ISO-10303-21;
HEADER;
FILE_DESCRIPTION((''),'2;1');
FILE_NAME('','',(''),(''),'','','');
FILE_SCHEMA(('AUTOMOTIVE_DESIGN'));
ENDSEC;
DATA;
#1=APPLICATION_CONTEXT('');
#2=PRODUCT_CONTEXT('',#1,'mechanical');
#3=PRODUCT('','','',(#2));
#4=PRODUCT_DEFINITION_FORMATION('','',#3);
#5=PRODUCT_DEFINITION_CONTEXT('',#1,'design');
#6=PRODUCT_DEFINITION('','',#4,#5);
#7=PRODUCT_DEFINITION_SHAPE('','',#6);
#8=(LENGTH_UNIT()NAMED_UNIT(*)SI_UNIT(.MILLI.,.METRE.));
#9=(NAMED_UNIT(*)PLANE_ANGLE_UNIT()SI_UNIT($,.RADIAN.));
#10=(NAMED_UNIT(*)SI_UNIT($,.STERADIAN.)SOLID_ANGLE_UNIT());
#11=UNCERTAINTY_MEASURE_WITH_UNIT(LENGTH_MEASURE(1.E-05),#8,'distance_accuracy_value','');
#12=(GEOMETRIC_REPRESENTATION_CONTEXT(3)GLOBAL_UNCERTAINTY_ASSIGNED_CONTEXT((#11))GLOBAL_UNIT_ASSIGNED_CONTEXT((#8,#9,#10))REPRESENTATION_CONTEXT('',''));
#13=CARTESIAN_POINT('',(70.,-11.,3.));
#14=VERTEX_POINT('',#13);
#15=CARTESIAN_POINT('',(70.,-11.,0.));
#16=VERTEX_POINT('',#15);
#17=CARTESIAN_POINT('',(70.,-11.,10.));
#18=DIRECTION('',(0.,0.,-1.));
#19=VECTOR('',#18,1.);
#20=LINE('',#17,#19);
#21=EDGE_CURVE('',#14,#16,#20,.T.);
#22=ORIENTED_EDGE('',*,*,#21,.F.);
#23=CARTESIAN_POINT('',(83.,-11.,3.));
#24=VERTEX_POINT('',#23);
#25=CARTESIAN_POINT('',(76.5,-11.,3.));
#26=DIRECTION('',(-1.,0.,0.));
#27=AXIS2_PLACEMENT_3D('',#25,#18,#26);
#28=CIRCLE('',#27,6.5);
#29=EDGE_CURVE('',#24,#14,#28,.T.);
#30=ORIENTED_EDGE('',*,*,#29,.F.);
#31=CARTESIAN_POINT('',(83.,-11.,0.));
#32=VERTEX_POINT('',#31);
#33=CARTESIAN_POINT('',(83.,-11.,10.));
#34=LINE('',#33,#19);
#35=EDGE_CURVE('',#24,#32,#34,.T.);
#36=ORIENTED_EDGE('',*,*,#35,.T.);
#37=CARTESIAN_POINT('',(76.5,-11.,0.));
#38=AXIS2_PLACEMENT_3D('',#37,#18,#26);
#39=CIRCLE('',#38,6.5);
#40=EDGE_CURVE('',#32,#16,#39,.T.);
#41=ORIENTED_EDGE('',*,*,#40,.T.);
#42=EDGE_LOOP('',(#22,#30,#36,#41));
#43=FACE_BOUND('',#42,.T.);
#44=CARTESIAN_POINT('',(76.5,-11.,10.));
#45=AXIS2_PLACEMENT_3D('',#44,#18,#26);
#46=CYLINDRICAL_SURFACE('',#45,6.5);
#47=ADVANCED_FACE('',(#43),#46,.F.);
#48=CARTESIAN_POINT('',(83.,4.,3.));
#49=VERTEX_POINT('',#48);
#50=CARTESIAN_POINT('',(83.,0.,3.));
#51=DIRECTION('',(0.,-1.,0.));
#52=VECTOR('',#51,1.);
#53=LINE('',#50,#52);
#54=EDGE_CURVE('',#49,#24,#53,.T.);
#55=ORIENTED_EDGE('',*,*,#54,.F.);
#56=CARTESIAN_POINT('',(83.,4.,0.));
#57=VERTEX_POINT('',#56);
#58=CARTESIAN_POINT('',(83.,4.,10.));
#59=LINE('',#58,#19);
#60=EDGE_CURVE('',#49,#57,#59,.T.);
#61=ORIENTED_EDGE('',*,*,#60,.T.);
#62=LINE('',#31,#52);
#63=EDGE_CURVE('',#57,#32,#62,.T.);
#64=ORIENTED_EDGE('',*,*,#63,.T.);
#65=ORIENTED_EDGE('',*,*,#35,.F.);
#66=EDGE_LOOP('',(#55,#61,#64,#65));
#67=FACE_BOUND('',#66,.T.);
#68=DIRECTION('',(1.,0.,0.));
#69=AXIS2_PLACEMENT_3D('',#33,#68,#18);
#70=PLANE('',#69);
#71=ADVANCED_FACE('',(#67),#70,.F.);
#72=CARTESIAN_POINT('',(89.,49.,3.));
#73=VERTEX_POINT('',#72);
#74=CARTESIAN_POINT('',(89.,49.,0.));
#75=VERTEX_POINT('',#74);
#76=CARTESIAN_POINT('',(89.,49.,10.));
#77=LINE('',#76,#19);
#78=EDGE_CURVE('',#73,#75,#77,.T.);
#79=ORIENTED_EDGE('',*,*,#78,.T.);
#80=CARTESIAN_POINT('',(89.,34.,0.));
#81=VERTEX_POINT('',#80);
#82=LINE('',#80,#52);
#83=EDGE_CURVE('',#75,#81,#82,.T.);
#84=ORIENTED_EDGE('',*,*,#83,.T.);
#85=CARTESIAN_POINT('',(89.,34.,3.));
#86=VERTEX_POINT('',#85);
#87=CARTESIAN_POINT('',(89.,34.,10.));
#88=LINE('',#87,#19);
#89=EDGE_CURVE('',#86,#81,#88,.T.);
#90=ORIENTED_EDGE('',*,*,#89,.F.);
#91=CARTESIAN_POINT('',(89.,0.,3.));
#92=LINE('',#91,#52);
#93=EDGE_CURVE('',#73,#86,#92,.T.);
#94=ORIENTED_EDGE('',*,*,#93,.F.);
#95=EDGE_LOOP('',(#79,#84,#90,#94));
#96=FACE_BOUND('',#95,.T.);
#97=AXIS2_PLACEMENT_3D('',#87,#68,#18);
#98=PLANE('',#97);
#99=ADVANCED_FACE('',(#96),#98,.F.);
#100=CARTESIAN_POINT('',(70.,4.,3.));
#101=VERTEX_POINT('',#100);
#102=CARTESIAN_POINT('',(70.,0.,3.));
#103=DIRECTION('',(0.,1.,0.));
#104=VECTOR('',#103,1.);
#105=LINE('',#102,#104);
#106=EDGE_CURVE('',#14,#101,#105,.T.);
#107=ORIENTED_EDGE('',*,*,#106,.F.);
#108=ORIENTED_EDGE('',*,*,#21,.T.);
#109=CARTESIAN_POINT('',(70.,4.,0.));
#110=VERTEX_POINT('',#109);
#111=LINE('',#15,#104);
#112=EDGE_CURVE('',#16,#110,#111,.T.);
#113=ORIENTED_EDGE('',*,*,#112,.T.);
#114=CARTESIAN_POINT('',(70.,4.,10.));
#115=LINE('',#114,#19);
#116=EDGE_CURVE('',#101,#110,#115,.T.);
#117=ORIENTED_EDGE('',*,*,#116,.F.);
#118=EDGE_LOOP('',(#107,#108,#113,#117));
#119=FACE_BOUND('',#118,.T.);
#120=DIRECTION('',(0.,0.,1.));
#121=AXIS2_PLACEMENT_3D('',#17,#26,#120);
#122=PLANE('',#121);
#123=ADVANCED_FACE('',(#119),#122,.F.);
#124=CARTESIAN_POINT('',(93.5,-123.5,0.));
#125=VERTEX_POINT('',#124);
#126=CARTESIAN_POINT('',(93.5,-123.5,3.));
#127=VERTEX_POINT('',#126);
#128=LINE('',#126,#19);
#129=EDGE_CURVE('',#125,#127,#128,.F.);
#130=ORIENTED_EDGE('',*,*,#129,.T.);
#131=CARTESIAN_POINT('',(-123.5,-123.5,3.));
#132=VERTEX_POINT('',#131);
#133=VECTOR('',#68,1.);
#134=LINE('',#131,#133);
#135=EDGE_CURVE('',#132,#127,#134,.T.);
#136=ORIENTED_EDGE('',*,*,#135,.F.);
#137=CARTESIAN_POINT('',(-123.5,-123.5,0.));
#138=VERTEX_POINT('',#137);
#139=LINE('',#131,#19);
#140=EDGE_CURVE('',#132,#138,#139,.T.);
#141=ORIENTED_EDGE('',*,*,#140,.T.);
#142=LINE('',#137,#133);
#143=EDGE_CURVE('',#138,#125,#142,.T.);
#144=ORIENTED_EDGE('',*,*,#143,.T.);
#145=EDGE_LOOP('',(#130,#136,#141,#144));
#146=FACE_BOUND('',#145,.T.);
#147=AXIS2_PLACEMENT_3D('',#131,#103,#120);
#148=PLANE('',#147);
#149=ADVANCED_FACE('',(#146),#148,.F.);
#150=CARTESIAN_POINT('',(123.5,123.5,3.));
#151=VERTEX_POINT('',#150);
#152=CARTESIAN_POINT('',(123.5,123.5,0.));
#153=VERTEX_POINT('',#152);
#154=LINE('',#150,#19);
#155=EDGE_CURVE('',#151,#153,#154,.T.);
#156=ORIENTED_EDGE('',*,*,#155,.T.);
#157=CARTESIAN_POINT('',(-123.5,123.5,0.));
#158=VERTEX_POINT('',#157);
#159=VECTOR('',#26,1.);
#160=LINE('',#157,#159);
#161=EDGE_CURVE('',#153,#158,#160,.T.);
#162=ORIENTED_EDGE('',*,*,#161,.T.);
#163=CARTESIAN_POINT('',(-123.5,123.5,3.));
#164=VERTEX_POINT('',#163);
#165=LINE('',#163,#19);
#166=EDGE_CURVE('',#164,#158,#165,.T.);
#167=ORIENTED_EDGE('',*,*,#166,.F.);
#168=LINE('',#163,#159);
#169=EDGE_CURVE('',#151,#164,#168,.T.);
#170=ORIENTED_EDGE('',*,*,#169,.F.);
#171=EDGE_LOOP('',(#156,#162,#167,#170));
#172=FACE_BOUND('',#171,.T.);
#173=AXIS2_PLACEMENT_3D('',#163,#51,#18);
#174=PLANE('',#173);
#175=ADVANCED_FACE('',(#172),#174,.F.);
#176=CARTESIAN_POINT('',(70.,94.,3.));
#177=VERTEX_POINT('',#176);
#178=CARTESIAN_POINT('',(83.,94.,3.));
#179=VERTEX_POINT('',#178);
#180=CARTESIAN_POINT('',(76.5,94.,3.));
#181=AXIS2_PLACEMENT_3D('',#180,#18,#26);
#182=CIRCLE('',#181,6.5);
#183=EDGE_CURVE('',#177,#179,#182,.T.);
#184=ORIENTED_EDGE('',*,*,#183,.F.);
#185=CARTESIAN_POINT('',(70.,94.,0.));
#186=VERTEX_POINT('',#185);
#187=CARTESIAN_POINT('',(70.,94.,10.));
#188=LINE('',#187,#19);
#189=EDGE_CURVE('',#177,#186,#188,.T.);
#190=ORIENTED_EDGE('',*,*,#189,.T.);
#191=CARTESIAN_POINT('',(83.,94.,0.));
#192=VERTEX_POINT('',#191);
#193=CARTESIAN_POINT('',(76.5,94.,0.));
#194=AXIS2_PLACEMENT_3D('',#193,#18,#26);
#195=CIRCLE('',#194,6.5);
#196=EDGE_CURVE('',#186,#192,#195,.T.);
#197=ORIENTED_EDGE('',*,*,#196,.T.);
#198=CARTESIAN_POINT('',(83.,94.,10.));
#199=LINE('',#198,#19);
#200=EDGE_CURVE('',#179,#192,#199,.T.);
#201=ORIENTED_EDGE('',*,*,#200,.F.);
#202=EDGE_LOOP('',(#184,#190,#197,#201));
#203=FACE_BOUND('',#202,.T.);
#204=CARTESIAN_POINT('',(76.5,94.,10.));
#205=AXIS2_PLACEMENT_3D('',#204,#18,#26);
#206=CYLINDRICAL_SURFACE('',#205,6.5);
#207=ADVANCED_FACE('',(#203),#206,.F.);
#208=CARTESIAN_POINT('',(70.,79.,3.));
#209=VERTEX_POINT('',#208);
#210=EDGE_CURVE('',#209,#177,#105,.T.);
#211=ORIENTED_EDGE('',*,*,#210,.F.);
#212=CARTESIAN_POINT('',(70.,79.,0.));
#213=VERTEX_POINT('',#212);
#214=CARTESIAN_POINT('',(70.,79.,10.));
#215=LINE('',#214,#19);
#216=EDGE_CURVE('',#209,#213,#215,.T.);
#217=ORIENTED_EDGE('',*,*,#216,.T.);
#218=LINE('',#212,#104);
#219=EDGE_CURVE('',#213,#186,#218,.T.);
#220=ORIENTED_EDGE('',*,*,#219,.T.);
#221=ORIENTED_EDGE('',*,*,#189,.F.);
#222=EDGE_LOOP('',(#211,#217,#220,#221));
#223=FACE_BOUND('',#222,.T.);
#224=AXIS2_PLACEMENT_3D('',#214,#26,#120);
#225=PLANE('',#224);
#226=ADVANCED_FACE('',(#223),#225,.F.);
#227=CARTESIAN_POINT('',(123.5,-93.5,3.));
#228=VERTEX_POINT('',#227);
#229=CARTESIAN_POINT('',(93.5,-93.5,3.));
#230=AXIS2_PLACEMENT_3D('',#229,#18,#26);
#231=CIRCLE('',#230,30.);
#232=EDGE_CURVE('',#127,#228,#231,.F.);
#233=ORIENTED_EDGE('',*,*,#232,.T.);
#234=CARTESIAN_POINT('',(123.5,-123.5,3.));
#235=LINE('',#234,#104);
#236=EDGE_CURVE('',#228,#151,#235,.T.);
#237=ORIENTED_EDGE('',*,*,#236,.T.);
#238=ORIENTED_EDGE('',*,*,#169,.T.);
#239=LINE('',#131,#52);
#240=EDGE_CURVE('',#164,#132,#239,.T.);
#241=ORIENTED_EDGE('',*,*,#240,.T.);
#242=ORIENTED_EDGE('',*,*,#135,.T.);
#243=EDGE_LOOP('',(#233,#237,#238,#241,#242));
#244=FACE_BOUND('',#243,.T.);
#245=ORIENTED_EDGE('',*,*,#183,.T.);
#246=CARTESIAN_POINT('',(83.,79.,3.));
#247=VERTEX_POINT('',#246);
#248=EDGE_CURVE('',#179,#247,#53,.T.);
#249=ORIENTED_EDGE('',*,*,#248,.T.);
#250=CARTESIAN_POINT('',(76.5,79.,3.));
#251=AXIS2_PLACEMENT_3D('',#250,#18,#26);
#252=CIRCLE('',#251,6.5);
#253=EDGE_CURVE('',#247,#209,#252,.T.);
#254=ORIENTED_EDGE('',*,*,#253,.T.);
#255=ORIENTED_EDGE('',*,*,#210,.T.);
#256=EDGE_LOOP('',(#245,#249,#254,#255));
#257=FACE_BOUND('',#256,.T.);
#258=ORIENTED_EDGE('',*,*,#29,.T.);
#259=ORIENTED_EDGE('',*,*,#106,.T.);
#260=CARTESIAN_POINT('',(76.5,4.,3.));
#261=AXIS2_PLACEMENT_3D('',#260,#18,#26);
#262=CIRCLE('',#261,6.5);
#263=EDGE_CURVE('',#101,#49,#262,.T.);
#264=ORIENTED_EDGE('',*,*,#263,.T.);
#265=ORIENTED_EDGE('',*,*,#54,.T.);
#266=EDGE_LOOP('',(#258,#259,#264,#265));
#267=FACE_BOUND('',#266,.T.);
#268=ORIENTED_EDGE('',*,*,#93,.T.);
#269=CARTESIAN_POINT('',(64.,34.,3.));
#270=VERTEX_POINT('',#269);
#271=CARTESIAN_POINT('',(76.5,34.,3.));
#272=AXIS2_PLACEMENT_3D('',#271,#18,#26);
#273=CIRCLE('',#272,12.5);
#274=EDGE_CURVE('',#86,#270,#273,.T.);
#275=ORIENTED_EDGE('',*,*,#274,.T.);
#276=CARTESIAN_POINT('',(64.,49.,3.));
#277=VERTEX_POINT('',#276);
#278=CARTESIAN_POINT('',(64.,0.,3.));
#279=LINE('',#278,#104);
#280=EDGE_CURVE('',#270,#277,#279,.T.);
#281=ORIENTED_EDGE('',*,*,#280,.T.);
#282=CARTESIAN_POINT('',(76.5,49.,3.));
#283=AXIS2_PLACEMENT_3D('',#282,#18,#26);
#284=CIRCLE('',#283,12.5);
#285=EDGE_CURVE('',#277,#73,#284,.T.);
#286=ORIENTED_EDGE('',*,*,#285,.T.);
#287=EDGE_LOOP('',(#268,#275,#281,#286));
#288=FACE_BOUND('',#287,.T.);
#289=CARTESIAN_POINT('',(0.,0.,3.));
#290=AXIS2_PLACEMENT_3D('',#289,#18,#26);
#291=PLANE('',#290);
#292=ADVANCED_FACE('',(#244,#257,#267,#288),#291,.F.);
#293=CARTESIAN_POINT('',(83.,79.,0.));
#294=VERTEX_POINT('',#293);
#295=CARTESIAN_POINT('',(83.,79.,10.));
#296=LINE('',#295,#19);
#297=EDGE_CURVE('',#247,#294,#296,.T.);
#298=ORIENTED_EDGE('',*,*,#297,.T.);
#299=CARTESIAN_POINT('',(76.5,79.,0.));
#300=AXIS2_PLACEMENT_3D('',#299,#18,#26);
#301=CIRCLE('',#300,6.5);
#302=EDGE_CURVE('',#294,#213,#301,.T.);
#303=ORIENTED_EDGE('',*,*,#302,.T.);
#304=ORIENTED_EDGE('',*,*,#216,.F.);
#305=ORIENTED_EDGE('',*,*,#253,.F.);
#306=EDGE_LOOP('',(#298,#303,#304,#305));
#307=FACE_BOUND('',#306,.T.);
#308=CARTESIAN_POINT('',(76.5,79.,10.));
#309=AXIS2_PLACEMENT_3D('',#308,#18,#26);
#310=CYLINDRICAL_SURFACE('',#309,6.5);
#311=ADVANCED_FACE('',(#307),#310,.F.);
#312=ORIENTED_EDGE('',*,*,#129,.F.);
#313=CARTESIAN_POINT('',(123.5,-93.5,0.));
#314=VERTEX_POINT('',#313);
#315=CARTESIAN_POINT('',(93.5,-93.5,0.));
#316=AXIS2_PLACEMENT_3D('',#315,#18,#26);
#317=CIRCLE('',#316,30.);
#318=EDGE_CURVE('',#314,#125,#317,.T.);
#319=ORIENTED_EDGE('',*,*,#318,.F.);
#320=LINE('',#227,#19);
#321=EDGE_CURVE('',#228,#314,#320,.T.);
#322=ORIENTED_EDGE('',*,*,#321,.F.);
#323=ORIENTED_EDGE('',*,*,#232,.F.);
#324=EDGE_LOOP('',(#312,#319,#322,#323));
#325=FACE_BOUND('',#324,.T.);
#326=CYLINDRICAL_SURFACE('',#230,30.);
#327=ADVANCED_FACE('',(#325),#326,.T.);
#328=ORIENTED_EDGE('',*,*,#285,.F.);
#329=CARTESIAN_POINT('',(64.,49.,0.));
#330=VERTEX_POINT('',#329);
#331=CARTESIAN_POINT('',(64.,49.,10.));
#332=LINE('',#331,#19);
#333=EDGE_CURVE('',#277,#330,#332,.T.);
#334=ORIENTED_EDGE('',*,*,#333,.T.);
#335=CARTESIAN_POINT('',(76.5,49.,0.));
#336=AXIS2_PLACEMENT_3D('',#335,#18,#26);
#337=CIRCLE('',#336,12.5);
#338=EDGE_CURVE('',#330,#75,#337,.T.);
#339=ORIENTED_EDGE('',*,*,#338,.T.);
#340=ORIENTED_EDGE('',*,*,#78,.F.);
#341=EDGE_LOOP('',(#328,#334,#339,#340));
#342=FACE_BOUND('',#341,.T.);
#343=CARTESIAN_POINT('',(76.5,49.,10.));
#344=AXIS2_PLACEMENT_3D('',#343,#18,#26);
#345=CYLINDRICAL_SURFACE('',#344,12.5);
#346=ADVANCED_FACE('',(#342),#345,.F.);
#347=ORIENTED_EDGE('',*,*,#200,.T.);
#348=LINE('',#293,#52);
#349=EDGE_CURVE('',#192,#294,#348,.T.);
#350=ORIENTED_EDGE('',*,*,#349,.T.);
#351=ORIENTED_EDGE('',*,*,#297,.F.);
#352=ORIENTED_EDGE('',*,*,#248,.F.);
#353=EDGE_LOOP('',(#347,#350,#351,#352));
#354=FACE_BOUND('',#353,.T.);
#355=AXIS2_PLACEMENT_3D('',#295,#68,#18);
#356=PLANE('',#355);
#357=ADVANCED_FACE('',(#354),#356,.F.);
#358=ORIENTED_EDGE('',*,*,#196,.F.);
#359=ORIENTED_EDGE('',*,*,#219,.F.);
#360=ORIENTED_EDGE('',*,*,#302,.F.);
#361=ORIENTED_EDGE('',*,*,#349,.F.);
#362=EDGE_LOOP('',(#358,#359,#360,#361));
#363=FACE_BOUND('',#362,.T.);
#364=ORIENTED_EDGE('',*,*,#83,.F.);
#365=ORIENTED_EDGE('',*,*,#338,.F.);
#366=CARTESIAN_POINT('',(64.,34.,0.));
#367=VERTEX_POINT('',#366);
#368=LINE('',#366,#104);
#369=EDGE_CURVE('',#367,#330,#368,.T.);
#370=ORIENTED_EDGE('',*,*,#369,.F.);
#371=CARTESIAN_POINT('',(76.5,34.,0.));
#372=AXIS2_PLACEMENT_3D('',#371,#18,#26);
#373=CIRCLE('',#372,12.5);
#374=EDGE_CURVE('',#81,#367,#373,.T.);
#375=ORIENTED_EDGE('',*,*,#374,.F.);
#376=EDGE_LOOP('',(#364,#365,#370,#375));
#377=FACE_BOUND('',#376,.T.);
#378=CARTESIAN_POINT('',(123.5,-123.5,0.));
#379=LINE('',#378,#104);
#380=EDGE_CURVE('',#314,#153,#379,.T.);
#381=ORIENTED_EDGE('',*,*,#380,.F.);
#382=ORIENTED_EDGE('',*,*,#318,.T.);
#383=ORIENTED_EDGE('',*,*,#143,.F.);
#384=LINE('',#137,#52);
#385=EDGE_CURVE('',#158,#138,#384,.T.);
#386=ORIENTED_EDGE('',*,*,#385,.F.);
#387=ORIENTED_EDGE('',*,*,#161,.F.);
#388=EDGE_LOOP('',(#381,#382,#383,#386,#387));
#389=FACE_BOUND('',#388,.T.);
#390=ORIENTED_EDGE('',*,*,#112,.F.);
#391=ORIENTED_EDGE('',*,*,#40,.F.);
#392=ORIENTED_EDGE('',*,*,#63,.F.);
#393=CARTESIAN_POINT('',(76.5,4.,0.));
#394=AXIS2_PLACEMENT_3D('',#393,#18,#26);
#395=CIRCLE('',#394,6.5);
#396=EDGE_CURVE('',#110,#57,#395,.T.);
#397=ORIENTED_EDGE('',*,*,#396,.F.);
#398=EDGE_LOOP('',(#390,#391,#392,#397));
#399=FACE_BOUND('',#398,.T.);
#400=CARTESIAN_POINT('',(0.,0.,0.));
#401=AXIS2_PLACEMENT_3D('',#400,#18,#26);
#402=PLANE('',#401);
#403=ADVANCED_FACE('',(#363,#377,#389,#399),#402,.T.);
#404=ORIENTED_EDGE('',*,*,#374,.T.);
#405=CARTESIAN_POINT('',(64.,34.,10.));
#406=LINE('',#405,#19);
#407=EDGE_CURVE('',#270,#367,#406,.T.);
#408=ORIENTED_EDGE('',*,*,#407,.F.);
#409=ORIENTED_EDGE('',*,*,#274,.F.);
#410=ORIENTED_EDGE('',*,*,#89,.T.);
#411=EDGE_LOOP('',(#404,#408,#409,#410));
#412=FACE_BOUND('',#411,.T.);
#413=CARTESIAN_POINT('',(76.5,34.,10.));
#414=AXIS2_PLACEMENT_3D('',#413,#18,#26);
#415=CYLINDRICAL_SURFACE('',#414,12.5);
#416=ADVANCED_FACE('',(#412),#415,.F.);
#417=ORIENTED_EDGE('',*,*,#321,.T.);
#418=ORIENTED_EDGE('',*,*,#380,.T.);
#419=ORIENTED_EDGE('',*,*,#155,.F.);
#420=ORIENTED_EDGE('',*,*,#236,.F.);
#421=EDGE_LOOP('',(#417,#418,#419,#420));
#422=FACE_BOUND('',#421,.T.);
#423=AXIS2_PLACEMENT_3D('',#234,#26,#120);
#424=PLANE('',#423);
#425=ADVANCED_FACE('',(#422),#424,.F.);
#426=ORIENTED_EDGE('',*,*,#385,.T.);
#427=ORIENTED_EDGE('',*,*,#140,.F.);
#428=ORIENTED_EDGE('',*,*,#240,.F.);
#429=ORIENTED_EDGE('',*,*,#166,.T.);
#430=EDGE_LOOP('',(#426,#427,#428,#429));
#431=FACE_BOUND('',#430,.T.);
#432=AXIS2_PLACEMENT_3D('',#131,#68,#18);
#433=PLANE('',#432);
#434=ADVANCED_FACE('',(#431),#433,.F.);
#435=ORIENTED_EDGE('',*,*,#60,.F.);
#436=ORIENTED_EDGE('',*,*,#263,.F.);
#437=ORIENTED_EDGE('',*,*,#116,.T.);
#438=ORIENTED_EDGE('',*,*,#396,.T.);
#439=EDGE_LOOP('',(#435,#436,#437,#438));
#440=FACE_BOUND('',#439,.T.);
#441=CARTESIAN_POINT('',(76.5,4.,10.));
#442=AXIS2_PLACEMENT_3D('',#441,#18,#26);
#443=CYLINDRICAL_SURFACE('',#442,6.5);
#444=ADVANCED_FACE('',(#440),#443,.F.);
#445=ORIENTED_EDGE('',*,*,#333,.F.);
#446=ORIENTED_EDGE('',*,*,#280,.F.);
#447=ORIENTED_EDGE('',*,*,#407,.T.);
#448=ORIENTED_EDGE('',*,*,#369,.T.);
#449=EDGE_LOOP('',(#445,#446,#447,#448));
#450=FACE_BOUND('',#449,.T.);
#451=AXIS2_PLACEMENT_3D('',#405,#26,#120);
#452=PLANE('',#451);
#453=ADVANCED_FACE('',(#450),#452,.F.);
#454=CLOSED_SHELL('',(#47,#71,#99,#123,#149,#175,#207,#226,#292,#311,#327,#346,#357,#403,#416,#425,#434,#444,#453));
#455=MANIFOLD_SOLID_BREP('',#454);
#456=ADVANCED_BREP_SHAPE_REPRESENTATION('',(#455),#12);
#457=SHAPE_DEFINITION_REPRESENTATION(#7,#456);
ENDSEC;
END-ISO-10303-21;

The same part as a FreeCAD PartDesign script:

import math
import FreeCAD as App
import Part
import Sketcher


def edges_at(feature, points):
    """Names of the edges that pass closest to the given points."""
    edges = feature.Shape.Edges
    near = lambda p: min(range(len(edges)), key=lambda i: edges[i].distToShape(Part.Vertex(*p))[0])
    return sorted({f"Edge{near(p) + 1}" for p in points})


def add_polygon(sketch, points):
    """Adds a closed chain of lines whose ends are joined by coincident constraints."""
    first, n = sketch.GeometryCount, len(points)
    for a, b in zip(points, points[1:] + points[:1]):
        sketch.addGeometry(Part.LineSegment(App.Vector(*a, 0), App.Vector(*b, 0)), False)
    for i in range(n):
        sketch.addConstraint(Sketcher.Constraint("Coincident", first + i, 2, first + (i + 1) % n, 1))

doc = App.newDocument("Part")
body = doc.addObject("PartDesign::Body", "Body")

# Sketch on XY plane
sketch1 = body.newObject("Sketcher::SketchObject", "Sketch")
sketch1.AttachmentSupport = (doc.getObject("XY_Plane"), [""])
sketch1.MapMode = "FlatFace"
add_polygon(sketch1, [(-124, 124), (-124, -124), (124, -124), (124, 124)])  # lines 0-3
sketch1.addGeometry(Part.Circle(App.Vector(76, -4, 0), App.Vector(0, 0, 1), 6), False)  # 4
sketch1.addGeometry(Part.Circle(App.Vector(76, 42, 0), App.Vector(0, 0, 1), 12), False)  # 5
sketch1.addGeometry(Part.Circle(App.Vector(76, 86, 0), App.Vector(0, 0, 1), 6), False)  # 6
sketch1.addConstraint([
    Sketcher.Constraint("Vertical", 0),
    Sketcher.Constraint("Horizontal", 1),
    Sketcher.Constraint("Vertical", 2),
    Sketcher.Constraint("Horizontal", 3),
    Sketcher.Constraint("Equal", 4, 6),
    Sketcher.Constraint("Symmetric", 0, 2, 2, 2, -1, 1),
    Sketcher.Constraint("Vertical", 4, 3, 5, 3),
    Sketcher.Constraint("Vertical", 5, 3, 6, 3),
    Sketcher.Constraint("Equal", 3, 0),
    Sketcher.Constraint("Diameter", 4, 13.0),
    Sketcher.Constraint("Diameter", 5, 25.0),
    Sketcher.Constraint("DistanceX", 1, 1, 1, 2, 247.0),
    Sketcher.Constraint("DistanceY", 4, 3, 5, 3, 45.0),
    Sketcher.Constraint("DistanceY", 5, 3, 6, 3, 45.0),
    Sketcher.Constraint("DistanceX", 0, 2, 4, 3, 200.0),
    Sketcher.Constraint("DistanceY", 0, 2, 4, 3, 120.0),
])
pad1 = body.newObject("PartDesign::Pad", "Pad")
pad1.Profile = sketch1
pad1.Length = 3
doc.recompute()

fillet = body.newObject("PartDesign::Fillet", "Fillet")
fillet.Base = (pad1, edges_at(pad1, [(123.5, -123.5, 1.5)]))
fillet.Radius = 30

# Sketch on XY plane
sketch2 = body.newObject("Sketcher::SketchObject", "Sketch001")
sketch2.AttachmentSupport = (doc.getObject("XY_Plane"), [""])
sketch2.MapMode = "FlatFace"
sketch2.addGeometry([
    Part.LineSegment(App.Vector(83, 94, 0), App.Vector(83, 79, 0)),  # 0
    Part.ArcOfCircle(Part.Circle(App.Vector(76, 79, 0), App.Vector(0, 0, 1), 6), math.radians(180), math.radians(360)),  # 1
    Part.LineSegment(App.Vector(70, 79, 0), App.Vector(70, 94, 0)),  # 2
    Part.ArcOfCircle(Part.Circle(App.Vector(76, 94, 0), App.Vector(0, 0, 1), 6), math.radians(0), math.radians(180)),  # 3
    Part.LineSegment(App.Vector(83, 4, 0), App.Vector(83, -11, 0)),  # 4
    Part.ArcOfCircle(Part.Circle(App.Vector(76, -11, 0), App.Vector(0, 0, 1), 6), math.radians(180), math.radians(360)),  # 5
    Part.LineSegment(App.Vector(70, -11, 0), App.Vector(70, 4, 0)),  # 6
    Part.ArcOfCircle(Part.Circle(App.Vector(76, 4, 0), App.Vector(0, 0, 1), 6), math.radians(0), math.radians(180)),  # 7
    Part.LineSegment(App.Vector(89, 49, 0), App.Vector(89, 34, 0)),  # 8
    Part.ArcOfCircle(Part.Circle(App.Vector(76, 34, 0), App.Vector(0, 0, 1), 12), math.radians(180), math.radians(360)),  # 9
    Part.LineSegment(App.Vector(64, 34, 0), App.Vector(64, 49, 0)),  # 10
    Part.ArcOfCircle(Part.Circle(App.Vector(76, 49, 0), App.Vector(0, 0, 1), 12), math.radians(0), math.radians(180)),  # 11
], False)
sketch2.addConstraint([
    Sketcher.Constraint("Tangent", 0, 2, 1, 2),
    Sketcher.Constraint("Tangent", 1, 1, 2, 1),
    Sketcher.Constraint("Tangent", 2, 2, 3, 2),
    Sketcher.Constraint("Tangent", 3, 1, 0, 1),
    Sketcher.Constraint("Tangent", 4, 2, 5, 2),
    Sketcher.Constraint("Tangent", 5, 1, 6, 1),
    Sketcher.Constraint("Tangent", 6, 2, 7, 2),
    Sketcher.Constraint("Tangent", 7, 1, 4, 1),
    Sketcher.Constraint("Tangent", 8, 2, 9, 2),
    Sketcher.Constraint("Tangent", 9, 1, 10, 1),
    Sketcher.Constraint("Tangent", 10, 2, 11, 2),
    Sketcher.Constraint("Tangent", 11, 1, 8, 1),
    Sketcher.Constraint("Vertical", 0),
    Sketcher.Constraint("Vertical", 2),
    Sketcher.Constraint("Vertical", 4),
    Sketcher.Constraint("Vertical", 6),
    Sketcher.Constraint("Vertical", 8),
    Sketcher.Constraint("Vertical", 10),
    Sketcher.Constraint("Equal", 3, 5),
    Sketcher.Constraint("Vertical", 3, 3, 5, 3),
    Sketcher.Constraint("Vertical", 7, 3, 9, 3),
    Sketcher.Constraint("Equal", 2, 4),
    Sketcher.Constraint("Equal", 6, 8),
    Sketcher.Constraint("Radius", 1, 6.5),
    Sketcher.Constraint("Radius", 9, 12.5),
    Sketcher.Constraint("DistanceY", 0, 2, 0, 1, 15.0),
    Sketcher.Constraint("DistanceY", -1, 1, 1, 3, 79.0),
    Sketcher.Constraint("DistanceY", 5, 3, -1, 1, 11.0),
    Sketcher.Constraint("DistanceY", -1, 1, 9, 3, 34.0),
    Sketcher.Constraint("DistanceX", -1, 1, 0, 2, 83.0),
])
pocket1 = body.newObject("PartDesign::Pocket", "Pocket")
pocket1.Profile = sketch2
pocket1.Length = 10
pocket1.Reversed = True

doc.recompute()
